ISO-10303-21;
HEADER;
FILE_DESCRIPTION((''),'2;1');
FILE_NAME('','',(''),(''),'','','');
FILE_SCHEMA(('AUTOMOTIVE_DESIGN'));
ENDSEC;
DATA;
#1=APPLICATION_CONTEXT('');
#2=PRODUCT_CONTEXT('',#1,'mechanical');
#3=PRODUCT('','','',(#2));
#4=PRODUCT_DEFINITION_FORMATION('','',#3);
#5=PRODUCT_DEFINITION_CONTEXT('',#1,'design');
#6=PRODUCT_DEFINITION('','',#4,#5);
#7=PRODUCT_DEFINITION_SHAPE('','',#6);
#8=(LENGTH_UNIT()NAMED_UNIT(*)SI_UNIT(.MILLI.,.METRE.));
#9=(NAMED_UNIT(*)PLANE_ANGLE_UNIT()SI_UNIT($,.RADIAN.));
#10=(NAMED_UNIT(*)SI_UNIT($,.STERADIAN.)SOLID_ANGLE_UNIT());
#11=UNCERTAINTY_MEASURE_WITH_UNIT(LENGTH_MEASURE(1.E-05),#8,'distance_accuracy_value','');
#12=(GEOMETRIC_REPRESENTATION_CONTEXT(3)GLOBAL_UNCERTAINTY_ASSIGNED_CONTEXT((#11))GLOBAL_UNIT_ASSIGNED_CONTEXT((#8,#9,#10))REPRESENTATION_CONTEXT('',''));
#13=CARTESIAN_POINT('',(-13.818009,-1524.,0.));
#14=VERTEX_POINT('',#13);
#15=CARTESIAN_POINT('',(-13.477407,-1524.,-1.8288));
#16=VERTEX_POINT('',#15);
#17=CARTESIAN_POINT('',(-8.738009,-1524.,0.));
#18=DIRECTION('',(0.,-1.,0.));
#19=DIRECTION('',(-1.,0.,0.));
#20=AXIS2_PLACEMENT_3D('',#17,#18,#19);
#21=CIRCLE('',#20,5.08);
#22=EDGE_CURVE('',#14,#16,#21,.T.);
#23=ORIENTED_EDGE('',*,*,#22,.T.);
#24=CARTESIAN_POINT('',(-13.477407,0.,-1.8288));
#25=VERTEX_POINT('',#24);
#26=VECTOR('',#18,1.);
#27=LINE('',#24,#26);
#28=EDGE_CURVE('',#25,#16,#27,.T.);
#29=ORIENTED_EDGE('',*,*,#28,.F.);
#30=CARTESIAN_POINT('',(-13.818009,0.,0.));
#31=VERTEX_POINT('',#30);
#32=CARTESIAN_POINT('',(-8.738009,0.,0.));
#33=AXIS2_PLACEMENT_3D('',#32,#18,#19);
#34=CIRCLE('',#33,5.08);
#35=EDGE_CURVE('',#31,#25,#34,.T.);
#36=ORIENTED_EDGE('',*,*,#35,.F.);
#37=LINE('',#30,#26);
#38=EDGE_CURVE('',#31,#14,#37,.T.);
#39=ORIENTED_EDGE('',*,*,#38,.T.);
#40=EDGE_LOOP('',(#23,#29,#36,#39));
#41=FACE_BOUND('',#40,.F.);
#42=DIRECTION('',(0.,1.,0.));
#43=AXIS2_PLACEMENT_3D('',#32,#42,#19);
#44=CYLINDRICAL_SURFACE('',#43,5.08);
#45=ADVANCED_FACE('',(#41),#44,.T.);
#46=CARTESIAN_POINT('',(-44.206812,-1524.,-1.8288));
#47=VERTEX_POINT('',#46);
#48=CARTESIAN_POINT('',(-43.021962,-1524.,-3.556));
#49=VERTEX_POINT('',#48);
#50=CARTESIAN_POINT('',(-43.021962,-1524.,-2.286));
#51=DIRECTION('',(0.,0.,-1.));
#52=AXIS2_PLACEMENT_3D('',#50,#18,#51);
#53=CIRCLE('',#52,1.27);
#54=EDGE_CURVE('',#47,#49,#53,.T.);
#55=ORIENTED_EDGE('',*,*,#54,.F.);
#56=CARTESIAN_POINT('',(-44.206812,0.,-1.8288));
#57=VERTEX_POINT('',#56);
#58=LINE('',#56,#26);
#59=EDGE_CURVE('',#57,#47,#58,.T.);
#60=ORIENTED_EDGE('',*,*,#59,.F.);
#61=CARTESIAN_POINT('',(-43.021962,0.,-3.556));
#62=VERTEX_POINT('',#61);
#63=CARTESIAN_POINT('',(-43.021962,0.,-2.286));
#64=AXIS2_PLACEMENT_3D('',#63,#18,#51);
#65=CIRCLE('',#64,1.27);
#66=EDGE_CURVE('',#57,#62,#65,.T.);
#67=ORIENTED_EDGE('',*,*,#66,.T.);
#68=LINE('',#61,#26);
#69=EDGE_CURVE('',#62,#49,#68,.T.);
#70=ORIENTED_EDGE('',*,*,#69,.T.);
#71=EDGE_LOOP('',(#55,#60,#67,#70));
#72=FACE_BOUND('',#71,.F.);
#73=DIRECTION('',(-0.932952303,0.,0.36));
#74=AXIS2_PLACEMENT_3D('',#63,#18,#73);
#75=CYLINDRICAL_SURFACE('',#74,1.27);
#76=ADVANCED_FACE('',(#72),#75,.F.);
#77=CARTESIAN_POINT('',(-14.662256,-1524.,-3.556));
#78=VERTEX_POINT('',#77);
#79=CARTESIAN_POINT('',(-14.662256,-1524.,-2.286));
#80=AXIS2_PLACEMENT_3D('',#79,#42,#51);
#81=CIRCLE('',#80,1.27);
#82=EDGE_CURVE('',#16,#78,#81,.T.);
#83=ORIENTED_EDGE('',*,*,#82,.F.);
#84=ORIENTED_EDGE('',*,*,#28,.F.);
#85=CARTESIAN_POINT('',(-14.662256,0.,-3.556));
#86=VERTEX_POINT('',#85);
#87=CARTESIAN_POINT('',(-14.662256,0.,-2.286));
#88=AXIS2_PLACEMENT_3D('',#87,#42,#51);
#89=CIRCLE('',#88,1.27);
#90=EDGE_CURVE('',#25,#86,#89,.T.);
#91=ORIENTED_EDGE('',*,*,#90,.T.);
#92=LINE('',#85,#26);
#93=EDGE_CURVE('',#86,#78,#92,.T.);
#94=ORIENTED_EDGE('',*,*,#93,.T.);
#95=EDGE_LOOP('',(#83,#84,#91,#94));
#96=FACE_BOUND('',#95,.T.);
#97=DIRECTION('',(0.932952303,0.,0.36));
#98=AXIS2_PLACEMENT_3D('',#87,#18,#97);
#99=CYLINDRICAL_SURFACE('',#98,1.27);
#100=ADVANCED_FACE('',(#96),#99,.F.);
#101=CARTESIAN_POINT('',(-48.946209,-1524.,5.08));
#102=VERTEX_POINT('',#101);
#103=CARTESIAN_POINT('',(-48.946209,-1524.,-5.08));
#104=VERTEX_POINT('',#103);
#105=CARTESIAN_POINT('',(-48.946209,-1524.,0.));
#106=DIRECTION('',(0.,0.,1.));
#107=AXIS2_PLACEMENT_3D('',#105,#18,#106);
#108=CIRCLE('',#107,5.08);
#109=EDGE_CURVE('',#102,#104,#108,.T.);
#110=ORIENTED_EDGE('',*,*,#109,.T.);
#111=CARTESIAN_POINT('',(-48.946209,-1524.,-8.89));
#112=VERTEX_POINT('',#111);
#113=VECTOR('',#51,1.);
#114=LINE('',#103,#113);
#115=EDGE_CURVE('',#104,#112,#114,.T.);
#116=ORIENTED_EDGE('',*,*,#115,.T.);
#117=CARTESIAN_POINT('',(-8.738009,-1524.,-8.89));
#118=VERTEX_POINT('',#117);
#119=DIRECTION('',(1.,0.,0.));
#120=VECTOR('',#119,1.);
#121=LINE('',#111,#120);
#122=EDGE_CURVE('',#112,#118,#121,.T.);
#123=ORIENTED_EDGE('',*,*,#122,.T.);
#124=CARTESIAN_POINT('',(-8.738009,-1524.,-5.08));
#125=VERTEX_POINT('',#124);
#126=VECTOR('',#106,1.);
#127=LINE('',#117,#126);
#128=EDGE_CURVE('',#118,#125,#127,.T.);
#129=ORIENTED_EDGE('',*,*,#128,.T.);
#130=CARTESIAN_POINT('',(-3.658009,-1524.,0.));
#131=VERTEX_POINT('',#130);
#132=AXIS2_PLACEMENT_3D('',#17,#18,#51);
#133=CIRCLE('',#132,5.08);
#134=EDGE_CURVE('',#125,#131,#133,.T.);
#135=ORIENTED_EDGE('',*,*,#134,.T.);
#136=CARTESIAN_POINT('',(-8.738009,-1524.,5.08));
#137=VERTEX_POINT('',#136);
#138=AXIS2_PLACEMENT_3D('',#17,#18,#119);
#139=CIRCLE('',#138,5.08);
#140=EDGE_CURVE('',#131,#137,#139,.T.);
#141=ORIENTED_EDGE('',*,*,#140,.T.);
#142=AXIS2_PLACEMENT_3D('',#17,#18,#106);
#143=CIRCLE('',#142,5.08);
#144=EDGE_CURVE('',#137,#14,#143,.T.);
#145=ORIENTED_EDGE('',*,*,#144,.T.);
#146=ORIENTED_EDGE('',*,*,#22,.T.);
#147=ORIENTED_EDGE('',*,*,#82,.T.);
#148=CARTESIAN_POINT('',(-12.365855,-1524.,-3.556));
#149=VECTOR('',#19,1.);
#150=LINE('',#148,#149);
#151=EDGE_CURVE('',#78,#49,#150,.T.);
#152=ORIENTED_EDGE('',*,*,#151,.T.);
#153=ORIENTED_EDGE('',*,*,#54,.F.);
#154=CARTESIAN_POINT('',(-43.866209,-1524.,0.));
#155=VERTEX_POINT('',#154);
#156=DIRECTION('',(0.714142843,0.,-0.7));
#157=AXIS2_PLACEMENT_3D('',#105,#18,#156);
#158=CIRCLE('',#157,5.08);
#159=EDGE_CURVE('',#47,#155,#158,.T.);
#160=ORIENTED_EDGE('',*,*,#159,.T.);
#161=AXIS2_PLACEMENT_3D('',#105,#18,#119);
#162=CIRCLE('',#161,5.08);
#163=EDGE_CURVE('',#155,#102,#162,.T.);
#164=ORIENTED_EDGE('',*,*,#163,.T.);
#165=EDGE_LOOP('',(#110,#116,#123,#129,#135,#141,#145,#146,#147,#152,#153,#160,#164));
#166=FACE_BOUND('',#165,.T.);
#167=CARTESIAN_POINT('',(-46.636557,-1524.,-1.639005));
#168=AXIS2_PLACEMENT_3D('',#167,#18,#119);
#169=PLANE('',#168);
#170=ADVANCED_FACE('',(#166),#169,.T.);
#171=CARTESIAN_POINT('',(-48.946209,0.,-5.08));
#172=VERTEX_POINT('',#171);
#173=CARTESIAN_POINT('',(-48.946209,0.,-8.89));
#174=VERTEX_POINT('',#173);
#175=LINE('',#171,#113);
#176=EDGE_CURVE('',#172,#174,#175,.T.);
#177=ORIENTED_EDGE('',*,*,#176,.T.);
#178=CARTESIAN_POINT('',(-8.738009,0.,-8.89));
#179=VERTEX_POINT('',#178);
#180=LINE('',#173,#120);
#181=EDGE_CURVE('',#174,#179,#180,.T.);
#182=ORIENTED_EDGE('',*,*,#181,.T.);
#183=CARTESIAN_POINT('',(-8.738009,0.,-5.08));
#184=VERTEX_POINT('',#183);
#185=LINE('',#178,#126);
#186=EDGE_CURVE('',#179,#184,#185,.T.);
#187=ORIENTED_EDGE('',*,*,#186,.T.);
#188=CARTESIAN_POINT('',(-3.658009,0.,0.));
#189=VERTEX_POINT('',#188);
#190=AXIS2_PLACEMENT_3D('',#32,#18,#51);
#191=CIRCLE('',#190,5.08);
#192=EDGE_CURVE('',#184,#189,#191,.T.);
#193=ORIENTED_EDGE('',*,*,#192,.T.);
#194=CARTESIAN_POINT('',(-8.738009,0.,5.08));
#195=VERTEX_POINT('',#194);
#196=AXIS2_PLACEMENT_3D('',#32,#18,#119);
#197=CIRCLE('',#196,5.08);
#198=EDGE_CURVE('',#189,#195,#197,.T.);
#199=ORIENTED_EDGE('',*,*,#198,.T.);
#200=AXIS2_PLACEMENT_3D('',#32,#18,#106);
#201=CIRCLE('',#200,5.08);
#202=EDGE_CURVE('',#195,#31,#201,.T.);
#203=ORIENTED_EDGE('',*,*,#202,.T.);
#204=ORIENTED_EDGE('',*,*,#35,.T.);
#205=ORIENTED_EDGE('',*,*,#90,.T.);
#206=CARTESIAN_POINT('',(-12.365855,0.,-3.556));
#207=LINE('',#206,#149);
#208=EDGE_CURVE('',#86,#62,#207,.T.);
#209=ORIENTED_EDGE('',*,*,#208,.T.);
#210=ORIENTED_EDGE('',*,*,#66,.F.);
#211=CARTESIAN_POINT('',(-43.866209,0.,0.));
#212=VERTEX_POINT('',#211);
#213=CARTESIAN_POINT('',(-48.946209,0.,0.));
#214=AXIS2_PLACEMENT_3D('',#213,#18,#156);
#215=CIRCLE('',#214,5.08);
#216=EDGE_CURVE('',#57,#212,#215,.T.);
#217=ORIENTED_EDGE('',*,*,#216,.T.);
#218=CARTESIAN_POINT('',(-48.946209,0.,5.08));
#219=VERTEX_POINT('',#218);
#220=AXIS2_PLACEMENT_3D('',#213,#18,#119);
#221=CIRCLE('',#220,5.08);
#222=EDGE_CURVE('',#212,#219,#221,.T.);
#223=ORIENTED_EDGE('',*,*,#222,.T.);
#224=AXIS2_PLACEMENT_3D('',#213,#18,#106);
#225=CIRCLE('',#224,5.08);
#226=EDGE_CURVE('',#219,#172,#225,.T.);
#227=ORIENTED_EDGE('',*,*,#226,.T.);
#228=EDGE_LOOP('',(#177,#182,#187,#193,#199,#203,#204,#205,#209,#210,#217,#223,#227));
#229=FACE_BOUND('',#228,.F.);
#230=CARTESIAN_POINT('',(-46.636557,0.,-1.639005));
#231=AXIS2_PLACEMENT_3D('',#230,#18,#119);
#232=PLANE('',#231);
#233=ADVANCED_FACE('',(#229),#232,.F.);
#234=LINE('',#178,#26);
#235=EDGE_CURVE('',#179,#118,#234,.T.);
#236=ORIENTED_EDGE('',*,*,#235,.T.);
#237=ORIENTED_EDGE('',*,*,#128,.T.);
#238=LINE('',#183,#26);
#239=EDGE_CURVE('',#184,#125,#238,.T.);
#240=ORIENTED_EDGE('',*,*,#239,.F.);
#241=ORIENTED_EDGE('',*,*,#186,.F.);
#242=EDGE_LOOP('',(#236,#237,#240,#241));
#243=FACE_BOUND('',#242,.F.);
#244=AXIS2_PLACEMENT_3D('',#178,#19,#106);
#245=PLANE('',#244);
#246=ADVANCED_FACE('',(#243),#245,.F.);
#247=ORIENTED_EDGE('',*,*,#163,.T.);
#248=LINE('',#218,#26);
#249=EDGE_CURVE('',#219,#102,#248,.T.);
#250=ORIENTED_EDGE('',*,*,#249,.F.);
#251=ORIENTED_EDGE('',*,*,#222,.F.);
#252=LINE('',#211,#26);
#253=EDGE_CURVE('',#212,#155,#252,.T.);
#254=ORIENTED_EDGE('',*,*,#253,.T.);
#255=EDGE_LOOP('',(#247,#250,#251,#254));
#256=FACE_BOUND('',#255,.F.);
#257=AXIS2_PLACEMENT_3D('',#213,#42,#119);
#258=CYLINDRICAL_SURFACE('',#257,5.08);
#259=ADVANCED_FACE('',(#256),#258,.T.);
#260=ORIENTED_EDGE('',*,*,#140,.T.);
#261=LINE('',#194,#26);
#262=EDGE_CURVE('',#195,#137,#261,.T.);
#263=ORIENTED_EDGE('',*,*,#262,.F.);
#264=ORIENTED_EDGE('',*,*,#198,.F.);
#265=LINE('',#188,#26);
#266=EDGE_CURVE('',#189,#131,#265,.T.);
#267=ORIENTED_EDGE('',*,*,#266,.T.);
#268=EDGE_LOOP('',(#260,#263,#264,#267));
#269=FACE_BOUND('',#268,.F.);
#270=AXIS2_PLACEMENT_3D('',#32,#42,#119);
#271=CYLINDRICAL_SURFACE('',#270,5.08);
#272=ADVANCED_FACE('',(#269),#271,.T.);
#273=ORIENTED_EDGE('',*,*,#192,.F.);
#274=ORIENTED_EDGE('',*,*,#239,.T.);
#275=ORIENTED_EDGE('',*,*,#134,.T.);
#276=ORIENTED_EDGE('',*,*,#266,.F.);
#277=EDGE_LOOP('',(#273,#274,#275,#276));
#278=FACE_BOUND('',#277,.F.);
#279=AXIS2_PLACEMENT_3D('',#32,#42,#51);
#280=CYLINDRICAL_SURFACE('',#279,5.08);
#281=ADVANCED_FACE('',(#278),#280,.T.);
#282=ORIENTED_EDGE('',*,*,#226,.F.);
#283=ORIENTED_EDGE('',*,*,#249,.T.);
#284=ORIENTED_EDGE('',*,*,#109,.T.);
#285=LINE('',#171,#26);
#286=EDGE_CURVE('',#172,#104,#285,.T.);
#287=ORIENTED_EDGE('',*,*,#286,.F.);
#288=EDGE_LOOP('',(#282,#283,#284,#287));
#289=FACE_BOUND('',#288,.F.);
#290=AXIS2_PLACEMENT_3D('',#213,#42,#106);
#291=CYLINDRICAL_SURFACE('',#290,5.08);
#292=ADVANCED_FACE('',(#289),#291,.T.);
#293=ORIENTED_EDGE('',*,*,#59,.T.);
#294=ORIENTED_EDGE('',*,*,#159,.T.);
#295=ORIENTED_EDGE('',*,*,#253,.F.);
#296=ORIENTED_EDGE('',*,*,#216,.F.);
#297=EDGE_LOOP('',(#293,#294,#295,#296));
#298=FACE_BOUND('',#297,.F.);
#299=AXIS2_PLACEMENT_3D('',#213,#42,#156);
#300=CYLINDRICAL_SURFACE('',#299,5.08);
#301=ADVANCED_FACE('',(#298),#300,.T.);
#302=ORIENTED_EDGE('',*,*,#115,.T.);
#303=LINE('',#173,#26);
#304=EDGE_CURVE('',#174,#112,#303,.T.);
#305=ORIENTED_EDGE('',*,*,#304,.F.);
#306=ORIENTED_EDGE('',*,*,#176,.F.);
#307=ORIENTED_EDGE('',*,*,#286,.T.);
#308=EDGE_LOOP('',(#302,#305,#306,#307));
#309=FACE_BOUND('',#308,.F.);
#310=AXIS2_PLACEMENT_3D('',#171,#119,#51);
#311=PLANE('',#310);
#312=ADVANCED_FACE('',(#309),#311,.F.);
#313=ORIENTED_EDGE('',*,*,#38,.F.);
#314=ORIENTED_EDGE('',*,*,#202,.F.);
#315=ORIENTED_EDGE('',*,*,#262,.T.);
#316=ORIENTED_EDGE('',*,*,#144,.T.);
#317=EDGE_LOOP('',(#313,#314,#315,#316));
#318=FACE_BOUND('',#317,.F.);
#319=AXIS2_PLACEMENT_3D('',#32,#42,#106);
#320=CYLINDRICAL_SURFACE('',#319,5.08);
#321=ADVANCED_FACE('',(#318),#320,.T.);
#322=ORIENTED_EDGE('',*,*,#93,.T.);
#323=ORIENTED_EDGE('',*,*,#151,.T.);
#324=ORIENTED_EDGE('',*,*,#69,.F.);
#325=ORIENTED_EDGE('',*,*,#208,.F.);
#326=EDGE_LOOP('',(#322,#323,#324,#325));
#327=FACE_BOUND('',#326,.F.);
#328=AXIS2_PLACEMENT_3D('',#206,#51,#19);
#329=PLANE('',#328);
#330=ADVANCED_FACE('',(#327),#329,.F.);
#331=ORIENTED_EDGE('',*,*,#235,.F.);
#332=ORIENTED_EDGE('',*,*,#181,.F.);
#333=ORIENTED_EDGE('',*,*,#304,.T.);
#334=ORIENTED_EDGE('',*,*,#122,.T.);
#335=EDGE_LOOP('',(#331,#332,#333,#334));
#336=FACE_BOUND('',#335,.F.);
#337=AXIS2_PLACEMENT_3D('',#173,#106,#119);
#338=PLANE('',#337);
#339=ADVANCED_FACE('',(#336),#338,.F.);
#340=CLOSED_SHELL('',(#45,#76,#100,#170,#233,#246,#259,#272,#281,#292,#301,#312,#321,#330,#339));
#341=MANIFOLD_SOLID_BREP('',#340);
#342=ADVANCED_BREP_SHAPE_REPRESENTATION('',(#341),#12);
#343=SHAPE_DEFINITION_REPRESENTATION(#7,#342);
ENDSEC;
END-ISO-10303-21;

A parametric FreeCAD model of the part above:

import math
import FreeCAD as App
import Part
import Sketcher
from FreeCAD import Vector
Q = App.Units.Quantity


def edges_at(feature, points):
    """Names of the edges that pass closest to the given points."""
    edges = feature.Shape.Edges
    near = lambda p: min(range(len(edges)), key=lambda i: edges[i].distToShape(Part.Vertex(*p))[0])
    return sorted({f"Edge{near(p) + 1}" for p in points})

doc = App.newDocument("Part")
body = doc.addObject("PartDesign::Body", "Body")

# Sketch on XZ plane
sketch1 = body.newObject("Sketcher::SketchObject", "Sketch")
sketch1.AttachmentSupport = (doc.getObject("XZ_Plane"), [""])
sketch1.MapMode = "FlatFace"
sketch1.addGeometry(Part.ArcOfCircle(Part.Circle(Vector(-48.9, 0, 0), Vector(0, 0, 1), 5.1), math.radians(-44), math.radians(0)), False)
sketch1.addGeometry(Part.ArcOfCircle(Part.Circle(Vector(-48.9, 0, 0), Vector(0, 0, 1), 5.1), math.radians(0), math.radians(90)), False)
sketch1.addGeometry(Part.ArcOfCircle(Part.Circle(Vector(-48.9, 0, 0), Vector(0, 0, 1), 5.1), math.radians(90), math.radians(270)), False)
sketch1.addGeometry(Part.LineSegment(Vector(-48.9, -5.1, 0), Vector(-48.9, -8.9, 0)), False)
sketch1.addGeometry(Part.LineSegment(Vector(-48.9, -8.9, 0), Vector(-8.7, -8.9, 0)), False)
sketch1.addGeometry(Part.LineSegment(Vector(-8.7, -8.9, 0), Vector(-8.7, -5.1, 0)), False)
sketch1.addGeometry(Part.ArcOfCircle(Part.Circle(Vector(-8.7, 0, 0), Vector(0, 0, 1), 5.1), math.radians(-90), math.radians(0)), False)
sketch1.addGeometry(Part.ArcOfCircle(Part.Circle(Vector(-8.7, 0, 0), Vector(0, 0, 1), 5.1), math.radians(0), math.radians(90)), False)
sketch1.addGeometry(Part.ArcOfCircle(Part.Circle(Vector(-8.7, 0, 0), Vector(0, 0, 1), 5.1), math.radians(90), math.radians(180)), False)
sketch1.addGeometry(Part.ArcOfCircle(Part.Circle(Vector(-8.7, 0, 0), Vector(0, 0, 1), 5.1), math.radians(180), math.radians(224)), False)
sketch1.addGeometry(Part.LineSegment(Vector(-12.4, -3.6, 0), Vector(-45.3, -3.6, 0)), False)
sketch1.addConstraint(Sketcher.Constraint("Tangent", 0, 2, 1, 1))
sketch1.addConstraint(Sketcher.Constraint("Tangent", 1, 2, 2, 1))
sketch1.addConstraint(Sketcher.Constraint("Coincident", 2, 2, 3, 1))
sketch1.addConstraint(Sketcher.Constraint("Coincident", 3, 2, 4, 1))
sketch1.addConstraint(Sketcher.Constraint("Coincident", 4, 2, 5, 1))
sketch1.addConstraint(Sketcher.Constraint("Coincident", 5, 2, 6, 1))
sketch1.addConstraint(Sketcher.Constraint("Tangent", 6, 2, 7, 1))
sketch1.addConstraint(Sketcher.Constraint("Tangent", 7, 2, 8, 1))
sketch1.addConstraint(Sketcher.Constraint("Tangent", 8, 2, 9, 1))
sketch1.addConstraint(Sketcher.Constraint("Coincident", 9, 2, 10, 1))
sketch1.addConstraint(Sketcher.Constraint("Coincident", 10, 2, 0, 1))
sketch1.addConstraint(Sketcher.Constraint("Vertical", 3))
sketch1.addConstraint(Sketcher.Constraint("Horizontal", 4))
sketch1.addConstraint(Sketcher.Constraint("Vertical", 5))
sketch1.addConstraint(Sketcher.Constraint("Horizontal", 10))
sketch1.addConstraint(Sketcher.Constraint("Coincident", 2, 3, 0, 3))
sketch1.addConstraint(Sketcher.Constraint("Coincident", 8, 3, 6, 3))
sketch1.addConstraint(Sketcher.Constraint("Equal", 2, 6))
sketch1.addConstraint(Sketcher.Constraint("Equal", 8, 9))
sketch1.addConstraint(Sketcher.Constraint("Symmetric", 1, 2, 2, 2, -1))
sketch1.addConstraint(Sketcher.Constraint("Symmetric", 5, 2, 7, 2, -1))
sketch1.addConstraint(Sketcher.Constraint("PointOnObject", 0, 2, -1))
sketch1.addConstraint(Sketcher.Constraint("PointOnObject", 6, 2, -1))
sketch1.addConstraint(Sketcher.Constraint("PointOnObject", 8, 2, -1))
sketch1.addConstraint(Sketcher.Constraint("Vertical", 2, 3, 1, 2))
sketch1.addConstraint(Sketcher.Constraint("Vertical", 9, 3, 4, 2))
sketch1.addConstraint(Sketcher.Constraint("Radius", 0, Q("0.2 in")))
sketch1.addConstraint(Sketcher.Constraint("DistanceY", 3, 2, 3, 1, Q("0.15 in")))
sketch1.addConstraint(Sketcher.Constraint("DistanceX", 4, 1, 4, 2, Q("1.583 in")))
sketch1.addConstraint(Sketcher.Constraint("DistanceY", 9, 2, -1, 1, Q("0.14 in")))
sketch1.addConstraint(Sketcher.Constraint("DistanceX", 0, 3, -1, 1, 48.946209))
pad1 = body.newObject("PartDesign::Pad", "Pad")
pad1.Profile = sketch1
pad1.Length = Q("60 in")
doc.recompute()

fillet = body.newObject("PartDesign::Fillet", "Fillet")
fillet.Base = (pad1, edges_at(pad1, [(-45.318, -762, -3.556), (-12.366, -762, -3.556)]))
fillet.Radius = Q("0.05 in")

doc.recompute()
